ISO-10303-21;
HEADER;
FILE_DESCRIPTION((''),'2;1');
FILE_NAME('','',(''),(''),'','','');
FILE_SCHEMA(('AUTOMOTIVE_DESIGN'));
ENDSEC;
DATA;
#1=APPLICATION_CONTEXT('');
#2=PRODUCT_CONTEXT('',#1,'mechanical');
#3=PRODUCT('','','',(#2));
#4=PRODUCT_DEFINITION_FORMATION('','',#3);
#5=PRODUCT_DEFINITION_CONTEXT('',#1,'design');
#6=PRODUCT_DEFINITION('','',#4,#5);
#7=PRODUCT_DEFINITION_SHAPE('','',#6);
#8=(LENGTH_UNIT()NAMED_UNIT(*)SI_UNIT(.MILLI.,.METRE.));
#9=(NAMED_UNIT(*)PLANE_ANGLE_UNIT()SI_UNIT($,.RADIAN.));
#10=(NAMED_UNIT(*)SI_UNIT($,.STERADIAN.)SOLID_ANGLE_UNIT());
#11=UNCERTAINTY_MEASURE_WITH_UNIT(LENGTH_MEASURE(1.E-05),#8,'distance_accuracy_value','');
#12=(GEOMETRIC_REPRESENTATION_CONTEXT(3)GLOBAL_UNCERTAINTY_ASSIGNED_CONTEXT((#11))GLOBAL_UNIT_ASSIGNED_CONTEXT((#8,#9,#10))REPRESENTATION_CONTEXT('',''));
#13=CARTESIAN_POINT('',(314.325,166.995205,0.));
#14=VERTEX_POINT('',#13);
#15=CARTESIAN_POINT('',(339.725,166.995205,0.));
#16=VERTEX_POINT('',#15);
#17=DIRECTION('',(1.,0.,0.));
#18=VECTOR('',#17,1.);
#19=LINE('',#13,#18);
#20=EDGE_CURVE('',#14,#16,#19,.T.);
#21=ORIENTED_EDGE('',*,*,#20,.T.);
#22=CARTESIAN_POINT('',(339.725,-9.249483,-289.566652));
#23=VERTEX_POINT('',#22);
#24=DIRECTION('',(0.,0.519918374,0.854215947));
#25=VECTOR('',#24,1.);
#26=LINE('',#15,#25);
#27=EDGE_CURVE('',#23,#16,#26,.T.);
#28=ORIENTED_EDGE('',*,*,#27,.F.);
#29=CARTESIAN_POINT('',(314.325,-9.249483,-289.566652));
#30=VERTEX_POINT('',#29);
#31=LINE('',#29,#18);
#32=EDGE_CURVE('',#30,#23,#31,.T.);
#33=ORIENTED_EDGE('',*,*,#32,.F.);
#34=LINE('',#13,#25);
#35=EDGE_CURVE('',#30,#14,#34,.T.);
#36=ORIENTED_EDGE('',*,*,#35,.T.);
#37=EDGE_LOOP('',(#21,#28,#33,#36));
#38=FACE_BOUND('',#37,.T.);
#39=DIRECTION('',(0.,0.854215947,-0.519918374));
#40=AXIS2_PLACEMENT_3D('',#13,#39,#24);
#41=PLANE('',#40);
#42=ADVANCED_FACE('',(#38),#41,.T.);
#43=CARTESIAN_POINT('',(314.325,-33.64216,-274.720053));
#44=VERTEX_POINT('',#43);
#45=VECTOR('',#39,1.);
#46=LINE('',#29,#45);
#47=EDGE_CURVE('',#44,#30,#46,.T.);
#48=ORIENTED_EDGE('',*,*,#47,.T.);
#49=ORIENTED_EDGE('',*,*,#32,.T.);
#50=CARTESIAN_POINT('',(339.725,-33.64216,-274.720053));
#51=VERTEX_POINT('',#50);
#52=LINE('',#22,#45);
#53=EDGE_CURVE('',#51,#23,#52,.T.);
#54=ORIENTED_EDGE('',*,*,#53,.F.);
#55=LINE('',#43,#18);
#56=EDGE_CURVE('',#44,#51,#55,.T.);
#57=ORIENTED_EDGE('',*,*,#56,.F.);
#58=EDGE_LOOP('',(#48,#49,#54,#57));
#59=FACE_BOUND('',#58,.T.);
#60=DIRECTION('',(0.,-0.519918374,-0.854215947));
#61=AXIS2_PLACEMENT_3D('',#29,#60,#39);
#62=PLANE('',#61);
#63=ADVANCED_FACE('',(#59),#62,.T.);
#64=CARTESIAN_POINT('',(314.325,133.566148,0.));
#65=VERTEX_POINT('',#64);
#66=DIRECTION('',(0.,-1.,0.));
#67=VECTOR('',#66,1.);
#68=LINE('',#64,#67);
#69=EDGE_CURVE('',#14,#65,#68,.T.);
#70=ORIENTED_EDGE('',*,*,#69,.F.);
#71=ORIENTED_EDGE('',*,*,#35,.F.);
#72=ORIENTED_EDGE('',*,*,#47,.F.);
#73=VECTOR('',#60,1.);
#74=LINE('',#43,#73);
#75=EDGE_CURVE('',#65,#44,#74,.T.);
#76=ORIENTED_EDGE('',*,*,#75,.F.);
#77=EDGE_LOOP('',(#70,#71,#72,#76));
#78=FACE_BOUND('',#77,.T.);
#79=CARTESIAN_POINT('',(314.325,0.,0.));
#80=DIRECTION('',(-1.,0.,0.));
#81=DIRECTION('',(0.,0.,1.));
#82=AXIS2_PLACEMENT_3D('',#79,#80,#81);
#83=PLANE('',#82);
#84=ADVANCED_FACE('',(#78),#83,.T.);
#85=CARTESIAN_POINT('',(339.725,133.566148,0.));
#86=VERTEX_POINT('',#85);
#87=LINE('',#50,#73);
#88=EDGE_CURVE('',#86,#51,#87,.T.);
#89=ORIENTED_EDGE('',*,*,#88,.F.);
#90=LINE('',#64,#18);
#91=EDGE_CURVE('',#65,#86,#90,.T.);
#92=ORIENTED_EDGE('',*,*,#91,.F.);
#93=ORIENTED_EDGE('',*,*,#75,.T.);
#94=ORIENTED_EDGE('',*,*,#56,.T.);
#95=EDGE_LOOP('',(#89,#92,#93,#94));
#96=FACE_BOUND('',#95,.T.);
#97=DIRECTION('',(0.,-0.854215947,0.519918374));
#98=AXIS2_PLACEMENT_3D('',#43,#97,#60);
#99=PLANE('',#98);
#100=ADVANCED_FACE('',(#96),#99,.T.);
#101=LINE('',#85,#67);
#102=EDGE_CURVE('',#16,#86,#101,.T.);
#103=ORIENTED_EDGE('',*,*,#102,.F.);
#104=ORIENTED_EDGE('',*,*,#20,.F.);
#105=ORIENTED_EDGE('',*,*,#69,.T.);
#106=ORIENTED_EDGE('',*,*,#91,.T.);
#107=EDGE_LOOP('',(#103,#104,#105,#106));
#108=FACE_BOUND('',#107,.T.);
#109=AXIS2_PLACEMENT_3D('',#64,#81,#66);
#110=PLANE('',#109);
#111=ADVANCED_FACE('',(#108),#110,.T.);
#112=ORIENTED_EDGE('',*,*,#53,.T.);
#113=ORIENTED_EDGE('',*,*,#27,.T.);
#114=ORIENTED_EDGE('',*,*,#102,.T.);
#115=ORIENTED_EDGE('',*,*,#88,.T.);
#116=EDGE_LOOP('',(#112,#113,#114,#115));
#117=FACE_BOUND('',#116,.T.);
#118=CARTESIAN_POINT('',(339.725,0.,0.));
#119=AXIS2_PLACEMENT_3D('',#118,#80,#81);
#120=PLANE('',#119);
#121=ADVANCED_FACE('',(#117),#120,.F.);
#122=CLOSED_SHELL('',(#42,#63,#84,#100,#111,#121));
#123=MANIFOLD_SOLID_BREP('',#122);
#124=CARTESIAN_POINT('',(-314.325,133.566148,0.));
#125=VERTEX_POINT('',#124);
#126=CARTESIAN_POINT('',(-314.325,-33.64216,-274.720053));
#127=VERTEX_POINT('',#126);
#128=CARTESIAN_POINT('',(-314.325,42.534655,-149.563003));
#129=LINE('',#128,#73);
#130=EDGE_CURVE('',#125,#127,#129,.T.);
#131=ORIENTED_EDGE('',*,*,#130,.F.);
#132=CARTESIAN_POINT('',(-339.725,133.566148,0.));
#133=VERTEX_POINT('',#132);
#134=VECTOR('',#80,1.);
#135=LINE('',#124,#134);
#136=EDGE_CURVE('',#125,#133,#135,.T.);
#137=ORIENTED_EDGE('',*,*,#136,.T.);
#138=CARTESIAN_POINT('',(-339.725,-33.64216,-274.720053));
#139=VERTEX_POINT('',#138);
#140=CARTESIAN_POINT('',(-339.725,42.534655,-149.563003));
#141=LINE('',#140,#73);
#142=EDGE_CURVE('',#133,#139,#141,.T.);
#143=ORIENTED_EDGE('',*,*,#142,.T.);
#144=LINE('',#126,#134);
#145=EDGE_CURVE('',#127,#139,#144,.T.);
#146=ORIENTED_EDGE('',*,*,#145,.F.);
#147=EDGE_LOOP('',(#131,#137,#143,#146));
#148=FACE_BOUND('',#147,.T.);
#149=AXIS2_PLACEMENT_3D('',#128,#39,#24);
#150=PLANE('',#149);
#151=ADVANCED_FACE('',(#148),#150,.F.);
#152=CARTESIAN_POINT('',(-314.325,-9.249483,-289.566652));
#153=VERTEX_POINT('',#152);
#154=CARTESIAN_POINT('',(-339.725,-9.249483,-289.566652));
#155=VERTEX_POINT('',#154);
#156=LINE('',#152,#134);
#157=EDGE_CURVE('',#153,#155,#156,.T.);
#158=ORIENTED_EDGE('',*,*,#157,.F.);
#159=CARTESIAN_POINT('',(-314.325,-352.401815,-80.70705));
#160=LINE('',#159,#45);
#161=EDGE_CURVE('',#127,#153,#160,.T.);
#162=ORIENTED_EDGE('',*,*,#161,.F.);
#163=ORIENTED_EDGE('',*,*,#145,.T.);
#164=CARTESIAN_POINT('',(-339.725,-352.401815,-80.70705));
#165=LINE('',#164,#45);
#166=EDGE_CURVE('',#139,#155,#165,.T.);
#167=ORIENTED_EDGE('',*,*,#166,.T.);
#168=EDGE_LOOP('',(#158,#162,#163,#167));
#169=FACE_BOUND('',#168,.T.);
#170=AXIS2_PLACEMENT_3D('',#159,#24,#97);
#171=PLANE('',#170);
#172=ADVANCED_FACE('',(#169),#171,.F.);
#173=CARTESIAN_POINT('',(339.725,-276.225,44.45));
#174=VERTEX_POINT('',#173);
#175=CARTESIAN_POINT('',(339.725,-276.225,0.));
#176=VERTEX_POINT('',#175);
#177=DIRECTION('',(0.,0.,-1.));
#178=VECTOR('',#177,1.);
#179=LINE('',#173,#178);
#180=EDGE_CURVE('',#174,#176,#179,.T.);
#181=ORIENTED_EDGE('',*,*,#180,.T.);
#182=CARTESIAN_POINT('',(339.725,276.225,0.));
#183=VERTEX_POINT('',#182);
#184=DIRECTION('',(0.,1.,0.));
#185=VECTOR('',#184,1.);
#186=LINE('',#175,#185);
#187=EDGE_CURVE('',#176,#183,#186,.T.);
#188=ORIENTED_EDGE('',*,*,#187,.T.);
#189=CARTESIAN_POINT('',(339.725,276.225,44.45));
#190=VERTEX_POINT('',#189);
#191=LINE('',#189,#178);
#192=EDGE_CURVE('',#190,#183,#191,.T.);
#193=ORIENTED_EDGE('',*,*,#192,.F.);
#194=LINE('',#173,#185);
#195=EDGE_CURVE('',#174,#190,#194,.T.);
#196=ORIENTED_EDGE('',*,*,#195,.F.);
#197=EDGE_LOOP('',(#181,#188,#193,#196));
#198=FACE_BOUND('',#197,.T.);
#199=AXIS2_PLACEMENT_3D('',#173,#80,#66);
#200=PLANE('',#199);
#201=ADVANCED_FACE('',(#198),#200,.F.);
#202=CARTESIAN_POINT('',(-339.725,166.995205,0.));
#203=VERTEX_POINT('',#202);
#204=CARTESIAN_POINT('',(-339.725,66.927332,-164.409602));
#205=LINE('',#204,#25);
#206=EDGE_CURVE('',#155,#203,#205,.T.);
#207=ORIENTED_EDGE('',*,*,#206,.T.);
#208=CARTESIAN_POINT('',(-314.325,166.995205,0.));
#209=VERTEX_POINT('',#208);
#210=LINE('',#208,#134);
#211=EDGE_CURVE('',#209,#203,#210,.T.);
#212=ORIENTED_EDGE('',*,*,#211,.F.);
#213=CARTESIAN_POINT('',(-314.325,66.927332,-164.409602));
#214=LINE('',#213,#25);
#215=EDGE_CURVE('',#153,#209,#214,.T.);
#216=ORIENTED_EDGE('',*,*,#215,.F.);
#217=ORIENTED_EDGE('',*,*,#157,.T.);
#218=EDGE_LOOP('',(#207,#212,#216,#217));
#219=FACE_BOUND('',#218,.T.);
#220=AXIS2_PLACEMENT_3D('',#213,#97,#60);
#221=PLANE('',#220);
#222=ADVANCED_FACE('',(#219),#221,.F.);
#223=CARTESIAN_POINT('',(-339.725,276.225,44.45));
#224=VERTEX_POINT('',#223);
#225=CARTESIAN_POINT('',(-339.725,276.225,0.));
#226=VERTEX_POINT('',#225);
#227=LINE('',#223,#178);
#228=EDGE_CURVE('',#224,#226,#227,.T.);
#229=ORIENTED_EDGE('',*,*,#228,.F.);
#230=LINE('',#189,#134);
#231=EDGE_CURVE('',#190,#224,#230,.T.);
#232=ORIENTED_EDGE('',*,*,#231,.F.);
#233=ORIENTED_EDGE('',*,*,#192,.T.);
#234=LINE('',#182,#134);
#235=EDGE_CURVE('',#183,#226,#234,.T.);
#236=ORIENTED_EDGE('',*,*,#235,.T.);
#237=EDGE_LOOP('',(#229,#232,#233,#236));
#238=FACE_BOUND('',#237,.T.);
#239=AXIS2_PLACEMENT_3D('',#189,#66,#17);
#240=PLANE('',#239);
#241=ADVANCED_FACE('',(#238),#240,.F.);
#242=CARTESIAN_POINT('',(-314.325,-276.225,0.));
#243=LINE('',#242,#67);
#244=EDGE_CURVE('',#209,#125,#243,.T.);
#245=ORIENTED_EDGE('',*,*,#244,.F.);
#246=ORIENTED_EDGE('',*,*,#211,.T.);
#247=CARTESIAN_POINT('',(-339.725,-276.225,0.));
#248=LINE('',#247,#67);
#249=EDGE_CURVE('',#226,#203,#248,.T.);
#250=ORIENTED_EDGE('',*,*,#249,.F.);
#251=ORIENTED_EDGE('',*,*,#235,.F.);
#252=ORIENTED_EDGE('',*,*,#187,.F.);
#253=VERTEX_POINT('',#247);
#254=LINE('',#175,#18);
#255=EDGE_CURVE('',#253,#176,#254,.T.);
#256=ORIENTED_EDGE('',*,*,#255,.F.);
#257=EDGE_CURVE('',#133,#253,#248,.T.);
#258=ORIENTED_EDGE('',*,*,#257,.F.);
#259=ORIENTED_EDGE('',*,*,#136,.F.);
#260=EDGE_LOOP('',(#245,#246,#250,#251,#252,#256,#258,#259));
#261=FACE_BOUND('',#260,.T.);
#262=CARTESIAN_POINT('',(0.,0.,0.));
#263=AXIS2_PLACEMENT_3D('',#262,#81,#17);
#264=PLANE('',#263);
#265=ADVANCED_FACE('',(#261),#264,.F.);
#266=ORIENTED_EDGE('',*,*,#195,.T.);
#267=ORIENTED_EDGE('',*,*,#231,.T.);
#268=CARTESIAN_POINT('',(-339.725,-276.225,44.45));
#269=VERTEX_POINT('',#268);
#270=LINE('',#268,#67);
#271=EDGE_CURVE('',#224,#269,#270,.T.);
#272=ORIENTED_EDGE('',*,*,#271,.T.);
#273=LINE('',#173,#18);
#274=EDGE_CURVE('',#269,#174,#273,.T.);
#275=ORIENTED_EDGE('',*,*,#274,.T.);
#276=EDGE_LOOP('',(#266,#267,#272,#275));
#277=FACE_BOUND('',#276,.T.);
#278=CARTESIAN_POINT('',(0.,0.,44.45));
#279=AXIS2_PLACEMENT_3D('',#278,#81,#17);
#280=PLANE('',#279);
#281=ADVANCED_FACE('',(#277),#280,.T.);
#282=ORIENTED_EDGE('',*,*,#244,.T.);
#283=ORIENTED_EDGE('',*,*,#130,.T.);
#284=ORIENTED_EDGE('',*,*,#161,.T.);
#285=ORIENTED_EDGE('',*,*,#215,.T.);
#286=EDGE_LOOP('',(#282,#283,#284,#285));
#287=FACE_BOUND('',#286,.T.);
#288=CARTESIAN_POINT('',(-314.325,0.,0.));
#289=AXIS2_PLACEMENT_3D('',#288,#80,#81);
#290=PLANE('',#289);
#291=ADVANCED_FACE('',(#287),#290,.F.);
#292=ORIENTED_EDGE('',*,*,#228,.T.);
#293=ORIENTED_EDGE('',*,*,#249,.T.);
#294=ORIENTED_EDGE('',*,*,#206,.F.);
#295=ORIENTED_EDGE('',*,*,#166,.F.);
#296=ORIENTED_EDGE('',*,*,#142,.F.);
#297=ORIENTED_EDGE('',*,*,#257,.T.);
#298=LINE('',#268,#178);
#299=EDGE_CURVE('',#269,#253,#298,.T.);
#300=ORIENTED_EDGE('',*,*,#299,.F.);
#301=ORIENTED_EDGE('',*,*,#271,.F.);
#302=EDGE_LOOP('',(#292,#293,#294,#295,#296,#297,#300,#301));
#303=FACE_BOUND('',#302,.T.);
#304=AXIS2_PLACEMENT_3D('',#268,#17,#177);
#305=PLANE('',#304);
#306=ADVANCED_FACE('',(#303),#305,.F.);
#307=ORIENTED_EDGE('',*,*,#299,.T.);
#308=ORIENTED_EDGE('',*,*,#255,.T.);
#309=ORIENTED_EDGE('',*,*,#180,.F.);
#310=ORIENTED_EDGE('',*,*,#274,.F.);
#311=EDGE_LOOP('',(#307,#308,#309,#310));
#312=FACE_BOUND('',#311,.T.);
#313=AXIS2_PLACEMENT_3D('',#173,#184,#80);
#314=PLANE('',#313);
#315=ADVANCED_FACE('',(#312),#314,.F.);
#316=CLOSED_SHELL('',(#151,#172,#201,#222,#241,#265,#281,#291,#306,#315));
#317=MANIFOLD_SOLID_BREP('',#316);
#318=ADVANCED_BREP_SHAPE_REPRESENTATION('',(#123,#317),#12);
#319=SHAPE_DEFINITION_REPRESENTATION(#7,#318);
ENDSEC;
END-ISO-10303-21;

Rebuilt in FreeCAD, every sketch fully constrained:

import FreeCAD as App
import Part
import Sketcher

V = App.Vector
Q = App.Units.Quantity

doc = App.newDocument("Part")
body = doc.addObject("PartDesign::Body", "Body")

sketch1 = body.newObject("Sketcher::SketchObject", "Sketch")
sketch1.AttachmentSupport = (doc.getObject("XY_Plane"), [""])
sketch1.MapMode = "FlatFace"
sketch1.addGeometry([
    Part.LineSegment(V(-339.725, 276.225, 0), V(-339.725, -276.225, 0)),
    Part.LineSegment(V(-339.725, -276.225, 0), V(339.725, -276.225, 0)),
    Part.LineSegment(V(339.725, -276.225, 0), V(339.725, 276.225, 0)),
    Part.LineSegment(V(339.725, 276.225, 0), V(-339.725, 276.225, 0)),
], False)
sketch1.addConstraint([
    Sketcher.Constraint("Coincident", 0, 2, 1, 1),
    Sketcher.Constraint("Coincident", 1, 2, 2, 1),
    Sketcher.Constraint("Coincident", 2, 2, 3, 1),
    Sketcher.Constraint("Coincident", 3, 2, 0, 1),
    Sketcher.Constraint("Vertical", 0),
    Sketcher.Constraint("Horizontal", 1),
    Sketcher.Constraint("Vertical", 2),
    Sketcher.Constraint("Horizontal", 3),
    Sketcher.Constraint("Symmetric", 0, 2, 2, 2, -1, 1),
    Sketcher.Constraint("DistanceX", 1, 1, 1, 2, Q("26.75 in")),
    Sketcher.Constraint("DistanceY", 0, 2, 0, 1, Q("21.75 in")),
])
pad1 = body.newObject("PartDesign::Pad", "Pad")
pad1.Profile = sketch1
pad1.Length = Q("1.75 in")

sketch2 = body.newObject("Sketcher::SketchObject", "Sketch001")
sketch2.AttachmentSupport = (doc.getObject("YZ_Plane"), [""])
sketch2.MapMode = "FlatFace"
sketch2.AttachmentOffset = App.Placement(V(0, 0, -13.375 * 25.4), App.Rotation())
sketch2.addGeometry([
    Part.LineSegment(V(-9.249483, -289.566652, 0), V(166.995205, 0, 0)),
    Part.LineSegment(V(166.995205, 0, 0), V(133.566148, 0, 0)),
    Part.LineSegment(V(133.566148, 0, 0), V(-33.64216, -274.720053, 0)),
    Part.LineSegment(V(-33.64216, -274.720053, 0), V(-9.249483, -289.566652, 0)),
], False)
sketch2.addConstraint([
    Sketcher.Constraint("Coincident", 0, 2, 1, 1),
    Sketcher.Constraint("Coincident", 1, 2, 2, 1),
    Sketcher.Constraint("Coincident", 2, 2, 3, 1),
    Sketcher.Constraint("Coincident", 3, 2, 0, 1),
    Sketcher.Constraint("Horizontal", 1),
    Sketcher.Constraint("PointOnObject", 0, 2, -1),
    Sketcher.Constraint("Parallel", 0, 2),
    Sketcher.Constraint("Perpendicular", 2, 3),
    Sketcher.Constraint("DistanceY", 3, 2, 2, 2, Q("14.846599 mm")),
    Sketcher.Constraint("DistanceX", 1, 2, 1, 1, Q("33.429057 mm")),
    Sketcher.Constraint("DistanceX", -1, 1, 1, 2, Q("133.566148 mm")),
    Sketcher.Constraint("DistanceX", 2, 2, -1, 1, Q("33.64216 mm")),
])
pad2 = body.newObject("PartDesign::Pad", "Pad001")
pad2.Profile = sketch2
pad2.Length = Q("1 in")
body2 = doc.addObject("PartDesign::Body", "Body001")

sketch3 = body2.newObject("Sketcher::SketchObject", "Sketch002")
sketch3.AttachmentSupport = (doc.getObject("YZ_Plane001"), [""])
sketch3.MapMode = "FlatFace"
sketch3.AttachmentOffset = App.Placement(V(0, 0, 13.375 * 25.4), App.Rotation())
sketch3.addGeometry([
    Part.LineSegment(V(-9.249483, -289.566652, 0), V(166.995205, 0, 0)),
    Part.LineSegment(V(166.995205, 0, 0), V(133.566148, 0, 0)),
    Part.LineSegment(V(133.566148, 0, 0), V(-33.64216, -274.720053, 0)),
    Part.LineSegment(V(-33.64216, -274.720053, 0), V(-9.249483, -289.566652, 0)),
], False)
sketch3.addConstraint([
    Sketcher.Constraint("Coincident", 0, 2, 1, 1),
    Sketcher.Constraint("Coincident", 1, 2, 2, 1),
    Sketcher.Constraint("Coincident", 2, 2, 3, 1),
    Sketcher.Constraint("Coincident", 3, 2, 0, 1),
    Sketcher.Constraint("Horizontal", 1),
    Sketcher.Constraint("PointOnObject", 0, 2, -1),
    Sketcher.Constraint("Parallel", 0, 2),
    Sketcher.Constraint("Perpendicular", 2, 3),
    Sketcher.Constraint("DistanceY", 3, 2, 2, 2, Q("14.846599 mm")),
    Sketcher.Constraint("DistanceX", 1, 2, 1, 1, Q("33.429057 mm")),
    Sketcher.Constraint("DistanceX", -1, 1, 1, 2, Q("133.566148 mm")),
    Sketcher.Constraint("DistanceX", 2, 2, -1, 1, Q("33.64216 mm")),
])
pad3 = body2.newObject("PartDesign::Pad", "Pad002")
pad3.Profile = sketch3
pad3.Length = Q("1 in")
pad3.Reversed = True

doc.recompute()
